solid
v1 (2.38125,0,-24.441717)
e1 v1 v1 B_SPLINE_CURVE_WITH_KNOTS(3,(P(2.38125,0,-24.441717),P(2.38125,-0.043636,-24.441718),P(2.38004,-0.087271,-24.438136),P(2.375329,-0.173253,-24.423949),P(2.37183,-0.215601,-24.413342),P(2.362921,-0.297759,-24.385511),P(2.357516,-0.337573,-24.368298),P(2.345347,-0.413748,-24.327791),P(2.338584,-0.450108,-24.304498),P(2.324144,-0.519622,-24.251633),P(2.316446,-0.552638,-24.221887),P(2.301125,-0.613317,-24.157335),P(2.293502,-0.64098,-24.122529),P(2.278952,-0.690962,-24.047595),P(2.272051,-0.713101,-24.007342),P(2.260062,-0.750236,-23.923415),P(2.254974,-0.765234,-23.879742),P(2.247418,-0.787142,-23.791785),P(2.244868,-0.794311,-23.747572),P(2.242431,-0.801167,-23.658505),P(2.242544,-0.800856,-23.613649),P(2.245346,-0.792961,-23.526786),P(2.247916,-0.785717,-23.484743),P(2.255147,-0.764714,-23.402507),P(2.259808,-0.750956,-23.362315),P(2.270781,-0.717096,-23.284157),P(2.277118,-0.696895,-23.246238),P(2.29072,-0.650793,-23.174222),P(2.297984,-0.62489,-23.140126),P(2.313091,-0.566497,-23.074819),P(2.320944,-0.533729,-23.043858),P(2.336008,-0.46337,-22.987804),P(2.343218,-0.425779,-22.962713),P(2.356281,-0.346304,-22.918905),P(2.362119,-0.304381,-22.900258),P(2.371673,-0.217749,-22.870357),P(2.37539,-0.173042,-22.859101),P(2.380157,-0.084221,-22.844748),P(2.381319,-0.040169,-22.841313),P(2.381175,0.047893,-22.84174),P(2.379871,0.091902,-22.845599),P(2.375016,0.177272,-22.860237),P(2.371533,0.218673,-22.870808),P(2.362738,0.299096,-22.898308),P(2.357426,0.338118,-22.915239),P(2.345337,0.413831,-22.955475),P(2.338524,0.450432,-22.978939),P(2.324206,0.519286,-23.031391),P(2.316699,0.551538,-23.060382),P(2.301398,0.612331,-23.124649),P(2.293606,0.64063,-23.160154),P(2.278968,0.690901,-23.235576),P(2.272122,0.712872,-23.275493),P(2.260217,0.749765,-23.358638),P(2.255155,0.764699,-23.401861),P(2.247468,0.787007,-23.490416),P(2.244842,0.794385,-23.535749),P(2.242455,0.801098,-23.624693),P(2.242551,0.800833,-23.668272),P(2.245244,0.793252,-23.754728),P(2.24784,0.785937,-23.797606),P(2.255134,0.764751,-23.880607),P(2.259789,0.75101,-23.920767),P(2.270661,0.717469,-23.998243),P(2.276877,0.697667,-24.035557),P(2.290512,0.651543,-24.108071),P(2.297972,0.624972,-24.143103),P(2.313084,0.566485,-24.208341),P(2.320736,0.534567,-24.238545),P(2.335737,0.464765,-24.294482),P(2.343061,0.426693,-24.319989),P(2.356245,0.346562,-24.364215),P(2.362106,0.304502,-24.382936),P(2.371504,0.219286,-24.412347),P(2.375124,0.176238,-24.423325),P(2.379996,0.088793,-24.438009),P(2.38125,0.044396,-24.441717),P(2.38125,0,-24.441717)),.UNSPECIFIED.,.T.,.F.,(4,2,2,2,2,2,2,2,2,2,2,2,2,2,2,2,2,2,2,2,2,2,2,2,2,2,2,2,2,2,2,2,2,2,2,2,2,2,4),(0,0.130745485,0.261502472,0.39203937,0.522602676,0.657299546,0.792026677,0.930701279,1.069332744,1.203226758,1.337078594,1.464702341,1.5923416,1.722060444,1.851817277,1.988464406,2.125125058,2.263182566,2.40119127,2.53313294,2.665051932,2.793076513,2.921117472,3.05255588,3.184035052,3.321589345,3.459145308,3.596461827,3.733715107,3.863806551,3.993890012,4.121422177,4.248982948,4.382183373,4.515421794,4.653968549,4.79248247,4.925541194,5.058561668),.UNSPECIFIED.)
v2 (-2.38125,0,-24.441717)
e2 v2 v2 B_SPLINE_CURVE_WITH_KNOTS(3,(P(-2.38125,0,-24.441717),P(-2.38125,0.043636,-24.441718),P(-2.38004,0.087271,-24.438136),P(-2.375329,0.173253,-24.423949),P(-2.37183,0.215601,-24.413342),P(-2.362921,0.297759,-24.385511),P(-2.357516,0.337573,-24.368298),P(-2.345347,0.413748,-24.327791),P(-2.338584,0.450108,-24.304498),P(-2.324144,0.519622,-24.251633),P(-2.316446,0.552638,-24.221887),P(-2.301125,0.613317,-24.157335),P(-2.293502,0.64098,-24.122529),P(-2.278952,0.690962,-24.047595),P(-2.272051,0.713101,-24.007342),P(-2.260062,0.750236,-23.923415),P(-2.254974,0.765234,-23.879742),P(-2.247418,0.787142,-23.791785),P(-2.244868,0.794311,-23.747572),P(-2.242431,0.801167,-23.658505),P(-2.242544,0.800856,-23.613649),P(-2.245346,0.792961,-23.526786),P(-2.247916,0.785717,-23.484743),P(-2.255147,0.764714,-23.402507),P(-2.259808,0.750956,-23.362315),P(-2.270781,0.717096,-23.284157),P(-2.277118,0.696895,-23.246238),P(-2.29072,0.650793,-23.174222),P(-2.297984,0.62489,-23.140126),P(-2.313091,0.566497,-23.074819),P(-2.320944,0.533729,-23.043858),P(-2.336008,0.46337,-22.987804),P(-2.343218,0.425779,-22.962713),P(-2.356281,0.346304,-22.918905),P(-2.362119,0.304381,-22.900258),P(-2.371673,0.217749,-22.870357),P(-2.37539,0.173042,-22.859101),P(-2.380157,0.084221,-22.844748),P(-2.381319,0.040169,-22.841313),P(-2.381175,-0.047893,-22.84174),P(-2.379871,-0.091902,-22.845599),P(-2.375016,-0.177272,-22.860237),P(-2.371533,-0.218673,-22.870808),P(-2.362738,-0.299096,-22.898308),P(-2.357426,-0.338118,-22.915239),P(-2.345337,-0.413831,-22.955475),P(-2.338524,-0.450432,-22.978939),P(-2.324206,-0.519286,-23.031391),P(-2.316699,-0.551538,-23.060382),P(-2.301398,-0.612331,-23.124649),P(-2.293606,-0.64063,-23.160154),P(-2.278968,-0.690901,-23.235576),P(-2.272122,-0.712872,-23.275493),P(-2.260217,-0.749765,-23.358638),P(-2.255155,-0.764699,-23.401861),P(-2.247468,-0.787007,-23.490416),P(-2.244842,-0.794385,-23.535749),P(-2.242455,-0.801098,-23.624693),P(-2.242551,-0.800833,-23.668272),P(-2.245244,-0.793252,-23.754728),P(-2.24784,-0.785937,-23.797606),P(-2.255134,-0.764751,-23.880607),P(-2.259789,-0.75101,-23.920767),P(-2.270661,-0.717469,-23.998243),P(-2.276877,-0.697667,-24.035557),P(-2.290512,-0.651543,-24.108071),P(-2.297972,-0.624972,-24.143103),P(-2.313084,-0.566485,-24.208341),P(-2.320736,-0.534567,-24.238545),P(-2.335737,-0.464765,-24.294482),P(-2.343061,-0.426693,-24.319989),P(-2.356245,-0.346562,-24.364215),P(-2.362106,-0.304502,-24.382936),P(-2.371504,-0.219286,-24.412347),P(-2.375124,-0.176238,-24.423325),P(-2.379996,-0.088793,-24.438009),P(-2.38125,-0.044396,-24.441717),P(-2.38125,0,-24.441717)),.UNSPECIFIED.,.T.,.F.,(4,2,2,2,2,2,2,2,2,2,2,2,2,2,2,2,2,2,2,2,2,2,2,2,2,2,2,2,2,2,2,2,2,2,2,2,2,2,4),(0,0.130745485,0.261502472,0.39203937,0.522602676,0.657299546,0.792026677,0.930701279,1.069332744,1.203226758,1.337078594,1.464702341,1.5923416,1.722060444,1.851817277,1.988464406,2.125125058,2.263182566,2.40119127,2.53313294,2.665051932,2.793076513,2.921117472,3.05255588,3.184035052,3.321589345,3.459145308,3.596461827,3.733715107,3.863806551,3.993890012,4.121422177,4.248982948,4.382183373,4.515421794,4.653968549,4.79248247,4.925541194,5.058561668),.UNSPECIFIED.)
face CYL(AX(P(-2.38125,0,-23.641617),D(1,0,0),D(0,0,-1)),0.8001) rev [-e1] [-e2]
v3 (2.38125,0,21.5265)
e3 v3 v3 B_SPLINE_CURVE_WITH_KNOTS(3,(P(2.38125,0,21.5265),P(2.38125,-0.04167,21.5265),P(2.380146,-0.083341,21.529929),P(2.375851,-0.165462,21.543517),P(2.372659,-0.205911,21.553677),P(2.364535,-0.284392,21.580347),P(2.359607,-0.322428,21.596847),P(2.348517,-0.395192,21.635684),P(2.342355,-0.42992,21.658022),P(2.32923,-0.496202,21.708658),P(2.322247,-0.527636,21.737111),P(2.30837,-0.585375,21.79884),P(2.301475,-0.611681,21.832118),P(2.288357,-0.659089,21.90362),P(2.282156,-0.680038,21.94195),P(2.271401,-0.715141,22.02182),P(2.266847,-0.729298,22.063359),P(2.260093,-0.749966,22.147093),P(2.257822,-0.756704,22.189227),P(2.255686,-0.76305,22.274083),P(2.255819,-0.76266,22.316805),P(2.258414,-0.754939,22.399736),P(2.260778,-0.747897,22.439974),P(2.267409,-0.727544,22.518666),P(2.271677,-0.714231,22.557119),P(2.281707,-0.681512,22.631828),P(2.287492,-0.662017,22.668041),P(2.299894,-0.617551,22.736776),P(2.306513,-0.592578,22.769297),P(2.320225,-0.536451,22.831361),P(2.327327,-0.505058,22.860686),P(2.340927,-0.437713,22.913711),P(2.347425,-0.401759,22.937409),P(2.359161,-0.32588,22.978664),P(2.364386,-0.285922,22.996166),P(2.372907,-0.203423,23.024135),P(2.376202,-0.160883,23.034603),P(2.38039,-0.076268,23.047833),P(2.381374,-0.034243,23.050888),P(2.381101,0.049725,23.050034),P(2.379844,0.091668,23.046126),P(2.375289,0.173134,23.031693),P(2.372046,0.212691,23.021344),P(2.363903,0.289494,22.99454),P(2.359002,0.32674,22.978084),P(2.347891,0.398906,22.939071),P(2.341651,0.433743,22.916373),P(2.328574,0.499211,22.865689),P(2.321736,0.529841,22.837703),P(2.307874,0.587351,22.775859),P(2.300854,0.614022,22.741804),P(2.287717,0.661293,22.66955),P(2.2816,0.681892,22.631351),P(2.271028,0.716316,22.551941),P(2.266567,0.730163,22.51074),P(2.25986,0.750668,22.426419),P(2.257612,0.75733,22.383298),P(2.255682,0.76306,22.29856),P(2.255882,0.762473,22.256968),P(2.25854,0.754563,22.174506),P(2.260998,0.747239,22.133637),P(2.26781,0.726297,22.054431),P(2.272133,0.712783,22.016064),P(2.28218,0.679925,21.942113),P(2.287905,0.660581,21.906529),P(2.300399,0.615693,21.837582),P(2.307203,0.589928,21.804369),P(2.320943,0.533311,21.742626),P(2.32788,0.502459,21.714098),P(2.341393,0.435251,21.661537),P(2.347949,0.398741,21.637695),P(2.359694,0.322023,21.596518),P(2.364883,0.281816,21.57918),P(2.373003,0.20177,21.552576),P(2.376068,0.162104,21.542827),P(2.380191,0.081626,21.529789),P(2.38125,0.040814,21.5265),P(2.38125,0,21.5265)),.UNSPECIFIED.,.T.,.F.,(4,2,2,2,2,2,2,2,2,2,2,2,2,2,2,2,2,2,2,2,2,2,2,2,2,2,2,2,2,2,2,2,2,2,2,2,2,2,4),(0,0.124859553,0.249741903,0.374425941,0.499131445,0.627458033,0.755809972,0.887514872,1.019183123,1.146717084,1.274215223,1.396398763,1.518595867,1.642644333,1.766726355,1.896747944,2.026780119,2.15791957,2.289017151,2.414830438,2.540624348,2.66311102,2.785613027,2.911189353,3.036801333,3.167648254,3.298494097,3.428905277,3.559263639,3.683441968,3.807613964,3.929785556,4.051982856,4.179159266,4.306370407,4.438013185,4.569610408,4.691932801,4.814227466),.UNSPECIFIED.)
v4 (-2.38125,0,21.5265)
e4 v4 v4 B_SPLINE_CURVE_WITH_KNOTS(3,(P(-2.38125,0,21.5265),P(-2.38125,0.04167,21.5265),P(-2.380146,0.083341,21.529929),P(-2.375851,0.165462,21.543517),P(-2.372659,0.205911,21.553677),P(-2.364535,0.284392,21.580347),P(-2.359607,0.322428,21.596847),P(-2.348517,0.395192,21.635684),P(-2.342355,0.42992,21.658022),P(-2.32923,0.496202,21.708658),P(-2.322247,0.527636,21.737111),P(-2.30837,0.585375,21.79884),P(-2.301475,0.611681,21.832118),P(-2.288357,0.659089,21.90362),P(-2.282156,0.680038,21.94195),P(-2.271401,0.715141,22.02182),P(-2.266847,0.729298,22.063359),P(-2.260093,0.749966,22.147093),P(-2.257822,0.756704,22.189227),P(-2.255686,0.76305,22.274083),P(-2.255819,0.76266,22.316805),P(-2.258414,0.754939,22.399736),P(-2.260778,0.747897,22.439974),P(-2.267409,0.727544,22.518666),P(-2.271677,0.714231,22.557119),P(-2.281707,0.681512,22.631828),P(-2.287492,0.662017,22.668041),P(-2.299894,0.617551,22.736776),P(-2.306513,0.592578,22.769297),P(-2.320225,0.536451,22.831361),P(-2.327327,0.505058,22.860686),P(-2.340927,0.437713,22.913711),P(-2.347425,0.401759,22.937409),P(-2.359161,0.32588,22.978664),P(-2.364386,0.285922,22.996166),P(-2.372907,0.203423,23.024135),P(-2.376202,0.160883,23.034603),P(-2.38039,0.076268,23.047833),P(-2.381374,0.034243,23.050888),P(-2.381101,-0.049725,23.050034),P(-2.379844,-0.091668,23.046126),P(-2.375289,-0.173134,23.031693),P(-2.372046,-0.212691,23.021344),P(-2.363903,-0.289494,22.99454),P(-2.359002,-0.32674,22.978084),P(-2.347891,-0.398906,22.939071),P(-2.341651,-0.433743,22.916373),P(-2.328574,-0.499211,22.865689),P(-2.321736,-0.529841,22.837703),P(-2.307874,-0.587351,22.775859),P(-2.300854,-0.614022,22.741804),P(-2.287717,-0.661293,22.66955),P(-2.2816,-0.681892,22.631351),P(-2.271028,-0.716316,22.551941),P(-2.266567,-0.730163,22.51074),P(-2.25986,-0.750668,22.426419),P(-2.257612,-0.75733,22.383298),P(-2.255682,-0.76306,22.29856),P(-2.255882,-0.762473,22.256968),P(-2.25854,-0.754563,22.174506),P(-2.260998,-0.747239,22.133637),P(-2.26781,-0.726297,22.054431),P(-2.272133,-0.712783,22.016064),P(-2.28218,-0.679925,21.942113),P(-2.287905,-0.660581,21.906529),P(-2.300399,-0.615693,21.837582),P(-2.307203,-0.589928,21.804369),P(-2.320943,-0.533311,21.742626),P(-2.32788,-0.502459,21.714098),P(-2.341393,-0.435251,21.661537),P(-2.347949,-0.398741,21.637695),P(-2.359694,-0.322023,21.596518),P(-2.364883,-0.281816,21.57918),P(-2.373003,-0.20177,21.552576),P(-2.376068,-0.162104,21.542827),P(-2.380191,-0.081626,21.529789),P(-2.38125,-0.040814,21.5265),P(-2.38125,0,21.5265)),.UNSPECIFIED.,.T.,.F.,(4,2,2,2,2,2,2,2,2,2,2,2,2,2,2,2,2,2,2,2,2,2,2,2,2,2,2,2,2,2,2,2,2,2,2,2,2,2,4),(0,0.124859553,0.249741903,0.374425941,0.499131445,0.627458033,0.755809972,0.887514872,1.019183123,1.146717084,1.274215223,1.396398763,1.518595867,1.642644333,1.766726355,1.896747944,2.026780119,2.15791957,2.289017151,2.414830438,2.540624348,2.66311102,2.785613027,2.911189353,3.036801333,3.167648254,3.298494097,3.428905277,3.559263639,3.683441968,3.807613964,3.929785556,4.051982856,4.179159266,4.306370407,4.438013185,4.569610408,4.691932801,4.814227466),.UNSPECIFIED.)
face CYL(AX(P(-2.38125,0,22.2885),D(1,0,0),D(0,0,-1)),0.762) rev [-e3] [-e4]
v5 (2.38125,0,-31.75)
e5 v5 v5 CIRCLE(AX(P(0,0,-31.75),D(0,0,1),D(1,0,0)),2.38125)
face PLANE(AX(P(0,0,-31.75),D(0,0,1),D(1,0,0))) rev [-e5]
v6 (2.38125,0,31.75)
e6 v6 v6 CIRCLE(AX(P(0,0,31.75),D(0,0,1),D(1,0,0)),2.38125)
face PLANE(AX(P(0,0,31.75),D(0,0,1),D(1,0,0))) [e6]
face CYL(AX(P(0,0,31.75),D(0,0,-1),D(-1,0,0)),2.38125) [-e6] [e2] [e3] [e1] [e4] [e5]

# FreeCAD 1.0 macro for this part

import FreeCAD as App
import Part
import Sketcher
Q = App.Units.Quantity

doc = App.newDocument("Part")
params = doc.addObject("Spreadsheet::Sheet", "Params")
for row, (alias, value) in enumerate([
    ("sketch1_diameter", "0.1875 in"),
    ("pad1_length", "2.5 in"),
    ("sketch2_diameter", "0.06 in"),
    ("sketch3_diameter", "0.063 in"),
], start=1):
    params.set(f"A{row}", alias)
    params.set(f"B{row}", "=" + value)
    params.setAlias(f"B{row}", alias)

body = doc.addObject("PartDesign::Body", "Body")

# Sketch on XY plane
sketch1 = body.newObject("Sketcher::SketchObject", "Sketch")
sketch1.AttachmentSupport = (doc.getObject("XY_Plane"), [""])
sketch1.MapMode = "FlatFace"
sketch1.addGeometry(Part.Circle(App.Vector(0, 0, 0), App.Vector(0, 0, 1), 2.4), False)
sketch1.addConstraint(Sketcher.Constraint("Coincident", 0, 3, -1, 1))
sketch1.addConstraint(Sketcher.Constraint("Diameter", 0, Q("0.1875 in")))
sketch1.setExpression("Constraints[1]", "Params.sketch1_diameter")
pad1 = body.newObject("PartDesign::Pad", "Pad")
pad1.Profile = sketch1
pad1.setExpression("Length", "Params.pad1_length")
pad1.Midplane = True

# Sketch on YZ plane
sketch2 = body.newObject("Sketcher::SketchObject", "Sketch001")
sketch2.AttachmentSupport = (doc.getObject("YZ_Plane"), [""])
sketch2.MapMode = "FlatFace"
sketch2.addGeometry(Part.Circle(App.Vector(0, 22.3, 0), App.Vector(0, 0, 1), 0.8), False)
sketch2.addConstraint(Sketcher.Constraint("PointOnObject", 0, 3, -2))
sketch2.addConstraint(Sketcher.Constraint("Diameter", 0, Q("0.06 in")))
sketch2.addConstraint(Sketcher.Constraint("DistanceY", -1, 1, 0, 3, Q("0.8775 in")))
sketch2.setExpression("Constraints[1]", "Params.sketch2_diameter")
pocket1 = body.newObject("PartDesign::Pocket", "Pocket")
pocket1.Profile = sketch2
pocket1.Type = "ThroughAll"
pocket1.Midplane = True

# Sketch on YZ plane
sketch3 = body.newObject("Sketcher::SketchObject", "Sketch002")
sketch3.AttachmentSupport = (doc.getObject("YZ_Plane"), [""])
sketch3.MapMode = "FlatFace"
sketch3.addGeometry(Part.Circle(App.Vector(0, -23.6, 0), App.Vector(0, 0, 1), 0.8), False)
sketch3.addConstraint(Sketcher.Constraint("PointOnObject", 0, 3, -2))
sketch3.addConstraint(Sketcher.Constraint("Diameter", 0, Q("0.063 in")))
sketch3.addConstraint(Sketcher.Constraint("DistanceY", 0, 3, -1, 1, 23.641617))
sketch3.setExpression("Constraints[1]", "Params.sketch3_diameter")
pocket2 = body.newObject("PartDesign::Pocket", "Pocket001")
pocket2.Profile = sketch3
pocket2.Type = "ThroughAll"
pocket2.Midplane = True

doc.recompute()
